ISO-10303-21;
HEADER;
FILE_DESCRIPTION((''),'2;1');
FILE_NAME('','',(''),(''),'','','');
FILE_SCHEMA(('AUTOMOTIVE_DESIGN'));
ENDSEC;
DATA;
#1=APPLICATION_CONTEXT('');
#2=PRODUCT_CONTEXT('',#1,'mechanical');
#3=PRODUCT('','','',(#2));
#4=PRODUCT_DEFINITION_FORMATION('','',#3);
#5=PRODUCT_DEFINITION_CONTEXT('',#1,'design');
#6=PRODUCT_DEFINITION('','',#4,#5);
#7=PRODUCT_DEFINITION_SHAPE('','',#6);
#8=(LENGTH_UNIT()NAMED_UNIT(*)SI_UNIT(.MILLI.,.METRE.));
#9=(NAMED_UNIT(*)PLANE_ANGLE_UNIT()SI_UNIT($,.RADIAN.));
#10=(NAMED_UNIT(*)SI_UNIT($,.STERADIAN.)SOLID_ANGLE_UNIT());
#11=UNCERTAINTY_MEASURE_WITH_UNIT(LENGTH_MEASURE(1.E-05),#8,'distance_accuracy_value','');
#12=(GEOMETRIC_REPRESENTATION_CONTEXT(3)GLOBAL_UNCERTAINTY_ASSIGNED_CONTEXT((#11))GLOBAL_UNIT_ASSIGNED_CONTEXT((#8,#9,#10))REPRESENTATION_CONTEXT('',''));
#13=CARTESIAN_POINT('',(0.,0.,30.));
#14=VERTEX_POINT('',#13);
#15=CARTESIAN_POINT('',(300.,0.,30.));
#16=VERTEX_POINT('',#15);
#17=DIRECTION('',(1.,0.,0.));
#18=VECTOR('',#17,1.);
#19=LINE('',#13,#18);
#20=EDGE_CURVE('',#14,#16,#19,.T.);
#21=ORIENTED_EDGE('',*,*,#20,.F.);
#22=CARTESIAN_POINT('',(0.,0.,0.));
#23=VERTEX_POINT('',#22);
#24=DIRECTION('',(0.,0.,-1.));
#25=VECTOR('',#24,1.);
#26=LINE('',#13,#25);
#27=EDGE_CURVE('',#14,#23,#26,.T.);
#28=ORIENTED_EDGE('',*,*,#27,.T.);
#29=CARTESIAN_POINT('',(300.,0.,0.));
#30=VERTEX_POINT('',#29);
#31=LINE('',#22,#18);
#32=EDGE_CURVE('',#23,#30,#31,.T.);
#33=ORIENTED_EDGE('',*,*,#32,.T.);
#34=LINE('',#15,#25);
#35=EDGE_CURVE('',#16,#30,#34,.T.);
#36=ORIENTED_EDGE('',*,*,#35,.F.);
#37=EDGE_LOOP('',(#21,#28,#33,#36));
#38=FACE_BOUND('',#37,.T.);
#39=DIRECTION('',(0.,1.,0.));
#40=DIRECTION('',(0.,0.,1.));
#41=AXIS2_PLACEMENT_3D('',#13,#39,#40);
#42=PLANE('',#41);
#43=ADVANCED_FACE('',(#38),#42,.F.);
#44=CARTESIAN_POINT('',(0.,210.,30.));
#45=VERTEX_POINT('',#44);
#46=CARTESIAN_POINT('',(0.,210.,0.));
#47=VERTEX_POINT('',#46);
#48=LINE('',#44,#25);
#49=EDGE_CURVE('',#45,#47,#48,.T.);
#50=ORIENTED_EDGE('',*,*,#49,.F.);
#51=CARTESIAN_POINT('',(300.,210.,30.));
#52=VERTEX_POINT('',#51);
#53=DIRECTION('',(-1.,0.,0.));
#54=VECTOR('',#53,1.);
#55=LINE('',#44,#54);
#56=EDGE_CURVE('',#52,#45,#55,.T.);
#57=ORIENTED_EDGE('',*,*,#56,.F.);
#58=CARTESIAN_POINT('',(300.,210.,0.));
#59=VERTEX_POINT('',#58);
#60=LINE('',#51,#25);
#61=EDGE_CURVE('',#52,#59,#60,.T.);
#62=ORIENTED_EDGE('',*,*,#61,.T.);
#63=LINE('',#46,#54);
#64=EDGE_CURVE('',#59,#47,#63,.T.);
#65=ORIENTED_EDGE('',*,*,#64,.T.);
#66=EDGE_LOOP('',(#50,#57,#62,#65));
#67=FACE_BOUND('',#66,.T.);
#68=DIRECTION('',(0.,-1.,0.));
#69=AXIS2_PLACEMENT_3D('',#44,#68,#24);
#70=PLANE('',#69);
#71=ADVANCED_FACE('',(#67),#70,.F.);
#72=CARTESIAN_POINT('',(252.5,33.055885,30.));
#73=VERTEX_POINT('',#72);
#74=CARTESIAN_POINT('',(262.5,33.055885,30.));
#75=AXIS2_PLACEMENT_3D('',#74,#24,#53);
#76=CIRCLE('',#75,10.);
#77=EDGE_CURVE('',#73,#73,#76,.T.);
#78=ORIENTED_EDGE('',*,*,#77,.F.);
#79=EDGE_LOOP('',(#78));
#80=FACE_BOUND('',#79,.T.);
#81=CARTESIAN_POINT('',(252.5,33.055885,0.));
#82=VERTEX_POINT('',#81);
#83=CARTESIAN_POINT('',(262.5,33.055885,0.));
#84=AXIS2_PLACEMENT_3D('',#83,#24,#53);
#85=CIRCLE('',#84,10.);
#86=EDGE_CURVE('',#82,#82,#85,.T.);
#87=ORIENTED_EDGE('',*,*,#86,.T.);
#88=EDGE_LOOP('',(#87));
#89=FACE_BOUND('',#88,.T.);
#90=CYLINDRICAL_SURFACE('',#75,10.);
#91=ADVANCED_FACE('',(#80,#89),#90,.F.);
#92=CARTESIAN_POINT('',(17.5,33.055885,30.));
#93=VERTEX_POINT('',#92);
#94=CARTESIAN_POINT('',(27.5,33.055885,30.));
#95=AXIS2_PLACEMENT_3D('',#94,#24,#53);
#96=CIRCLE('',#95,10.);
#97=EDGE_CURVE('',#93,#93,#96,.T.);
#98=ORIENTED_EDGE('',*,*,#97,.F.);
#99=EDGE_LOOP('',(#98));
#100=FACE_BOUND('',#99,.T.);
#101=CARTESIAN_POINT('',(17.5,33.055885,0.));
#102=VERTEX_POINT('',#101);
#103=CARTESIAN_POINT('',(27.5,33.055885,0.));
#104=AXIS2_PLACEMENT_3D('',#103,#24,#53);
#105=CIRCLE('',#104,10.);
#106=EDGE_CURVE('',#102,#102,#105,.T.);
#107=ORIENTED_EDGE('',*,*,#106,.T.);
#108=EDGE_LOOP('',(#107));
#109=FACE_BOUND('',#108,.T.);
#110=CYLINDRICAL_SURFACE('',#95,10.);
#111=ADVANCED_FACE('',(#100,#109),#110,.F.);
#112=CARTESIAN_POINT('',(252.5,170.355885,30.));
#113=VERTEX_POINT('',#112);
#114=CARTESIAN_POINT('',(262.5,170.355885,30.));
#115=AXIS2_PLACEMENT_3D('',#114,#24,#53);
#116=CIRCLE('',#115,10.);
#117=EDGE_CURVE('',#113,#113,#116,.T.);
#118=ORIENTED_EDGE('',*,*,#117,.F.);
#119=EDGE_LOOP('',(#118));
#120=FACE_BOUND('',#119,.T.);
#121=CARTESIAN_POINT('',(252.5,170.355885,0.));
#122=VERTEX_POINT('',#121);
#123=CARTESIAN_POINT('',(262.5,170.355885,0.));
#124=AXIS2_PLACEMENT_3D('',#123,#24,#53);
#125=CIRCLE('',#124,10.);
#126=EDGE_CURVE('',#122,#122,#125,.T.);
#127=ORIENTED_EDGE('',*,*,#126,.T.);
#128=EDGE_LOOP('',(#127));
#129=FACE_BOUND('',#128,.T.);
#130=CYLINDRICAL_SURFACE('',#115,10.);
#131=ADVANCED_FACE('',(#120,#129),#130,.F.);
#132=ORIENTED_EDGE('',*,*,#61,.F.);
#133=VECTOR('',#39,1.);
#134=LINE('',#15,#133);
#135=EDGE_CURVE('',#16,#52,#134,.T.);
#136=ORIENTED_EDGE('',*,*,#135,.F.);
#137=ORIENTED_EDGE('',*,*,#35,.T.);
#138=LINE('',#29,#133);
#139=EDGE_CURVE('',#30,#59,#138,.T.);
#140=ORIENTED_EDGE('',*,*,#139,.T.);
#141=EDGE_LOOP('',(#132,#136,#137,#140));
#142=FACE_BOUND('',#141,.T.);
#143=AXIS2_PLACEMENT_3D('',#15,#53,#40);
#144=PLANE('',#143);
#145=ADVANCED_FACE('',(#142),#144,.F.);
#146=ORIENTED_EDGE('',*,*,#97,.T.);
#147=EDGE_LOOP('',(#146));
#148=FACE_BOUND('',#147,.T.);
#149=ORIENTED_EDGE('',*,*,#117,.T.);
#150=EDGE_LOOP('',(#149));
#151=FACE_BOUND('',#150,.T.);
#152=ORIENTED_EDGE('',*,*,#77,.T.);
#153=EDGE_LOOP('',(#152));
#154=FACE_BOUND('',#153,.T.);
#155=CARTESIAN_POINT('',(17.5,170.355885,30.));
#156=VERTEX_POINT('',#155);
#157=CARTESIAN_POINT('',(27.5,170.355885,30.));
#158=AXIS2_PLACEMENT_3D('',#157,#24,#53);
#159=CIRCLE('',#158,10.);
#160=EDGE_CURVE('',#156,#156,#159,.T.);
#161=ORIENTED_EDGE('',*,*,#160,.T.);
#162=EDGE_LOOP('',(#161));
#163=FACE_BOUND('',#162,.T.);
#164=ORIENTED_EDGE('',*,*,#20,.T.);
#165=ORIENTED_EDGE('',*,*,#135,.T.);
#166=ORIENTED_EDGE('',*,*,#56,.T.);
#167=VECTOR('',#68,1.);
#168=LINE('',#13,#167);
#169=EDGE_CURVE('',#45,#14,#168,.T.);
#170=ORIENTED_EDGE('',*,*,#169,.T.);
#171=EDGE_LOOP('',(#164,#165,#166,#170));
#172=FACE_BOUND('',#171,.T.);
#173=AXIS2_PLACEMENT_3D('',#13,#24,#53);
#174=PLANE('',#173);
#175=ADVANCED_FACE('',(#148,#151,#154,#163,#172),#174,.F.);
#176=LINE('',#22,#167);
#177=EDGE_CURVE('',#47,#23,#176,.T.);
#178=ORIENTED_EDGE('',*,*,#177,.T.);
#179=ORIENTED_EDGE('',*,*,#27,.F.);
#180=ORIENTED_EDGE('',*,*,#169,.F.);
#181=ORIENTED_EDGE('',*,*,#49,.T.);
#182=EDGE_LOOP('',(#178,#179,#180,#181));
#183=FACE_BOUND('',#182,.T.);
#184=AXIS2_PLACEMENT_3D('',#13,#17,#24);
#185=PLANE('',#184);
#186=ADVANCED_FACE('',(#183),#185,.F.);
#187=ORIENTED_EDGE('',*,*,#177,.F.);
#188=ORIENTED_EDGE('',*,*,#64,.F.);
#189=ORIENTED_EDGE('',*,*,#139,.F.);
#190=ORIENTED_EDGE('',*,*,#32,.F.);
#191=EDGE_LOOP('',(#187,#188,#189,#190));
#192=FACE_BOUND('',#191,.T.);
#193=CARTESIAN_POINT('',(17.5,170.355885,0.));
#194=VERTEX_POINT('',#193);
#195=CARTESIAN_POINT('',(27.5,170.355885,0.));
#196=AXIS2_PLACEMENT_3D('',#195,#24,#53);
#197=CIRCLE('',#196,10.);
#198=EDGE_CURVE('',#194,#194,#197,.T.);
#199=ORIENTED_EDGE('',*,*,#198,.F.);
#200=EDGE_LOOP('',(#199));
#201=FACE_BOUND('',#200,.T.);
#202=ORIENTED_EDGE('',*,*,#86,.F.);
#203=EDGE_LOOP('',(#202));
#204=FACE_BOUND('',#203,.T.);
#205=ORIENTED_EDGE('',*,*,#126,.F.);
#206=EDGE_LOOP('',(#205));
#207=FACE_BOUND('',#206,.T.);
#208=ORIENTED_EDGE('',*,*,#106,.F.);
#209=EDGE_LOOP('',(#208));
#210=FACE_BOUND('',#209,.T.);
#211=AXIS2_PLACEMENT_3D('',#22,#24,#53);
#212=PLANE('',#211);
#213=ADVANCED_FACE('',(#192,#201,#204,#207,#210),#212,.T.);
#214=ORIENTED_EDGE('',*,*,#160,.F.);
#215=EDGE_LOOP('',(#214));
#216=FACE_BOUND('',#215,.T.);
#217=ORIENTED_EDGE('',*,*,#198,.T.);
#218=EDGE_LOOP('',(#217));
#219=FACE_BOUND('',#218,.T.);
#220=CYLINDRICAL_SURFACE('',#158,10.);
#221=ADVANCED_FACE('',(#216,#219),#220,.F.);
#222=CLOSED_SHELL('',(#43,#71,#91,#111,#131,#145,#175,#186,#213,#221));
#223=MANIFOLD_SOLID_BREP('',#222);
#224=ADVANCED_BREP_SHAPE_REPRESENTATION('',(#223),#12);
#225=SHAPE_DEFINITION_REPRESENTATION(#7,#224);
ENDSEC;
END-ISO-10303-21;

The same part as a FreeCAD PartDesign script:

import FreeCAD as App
import Part
import Sketcher
from FreeCAD import Vector

doc = App.newDocument("Part")
body = doc.addObject("PartDesign::Body", "Body")

sketch1 = body.newObject("Sketcher::SketchObject", "Sketch")
sketch1.AttachmentSupport = (doc.getObject("XY_Plane"), [""])
sketch1.MapMode = "FlatFace"
sketch1.addGeometry([
    Part.LineSegment(Vector(0, 210, 0), Vector(0, 0, 0)),
    Part.LineSegment(Vector(0, 0, 0), Vector(300, 0, 0)),
    Part.LineSegment(Vector(300, 0, 0), Vector(300, 210, 0)),
    Part.LineSegment(Vector(300, 210, 0), Vector(0, 210, 0)),
], False)
sketch1.addConstraint([
    Sketcher.Constraint("Coincident", 0, 2, 1, 1),
    Sketcher.Constraint("Coincident", 1, 2, 2, 1),
    Sketcher.Constraint("Coincident", 2, 2, 3, 1),
    Sketcher.Constraint("Coincident", 3, 2, 0, 1),
    Sketcher.Constraint("Vertical", 0),
    Sketcher.Constraint("Horizontal", 1),
    Sketcher.Constraint("Vertical", 2),
    Sketcher.Constraint("Horizontal", 3),
    Sketcher.Constraint("Coincident", 0, 2, -1, 1),
    Sketcher.Constraint("DistanceX", 1, 1, 1, 2, 300.0),
    Sketcher.Constraint("DistanceY", 0, 2, 0, 1, 210.0),
])
pad1 = body.newObject("PartDesign::Pad", "Pad")
pad1.Profile = sketch1
pad1.Length = 30

sketch2 = body.newObject("Sketcher::SketchObject", "Sketch001")
sketch2.AttachmentSupport = (doc.getObject("XY_Plane"), [""])
sketch2.MapMode = "FlatFace"
sketch2.addGeometry([
    Part.Circle(Vector(28, 33, 0), Vector(0, 0, 1), 10),
    Part.Circle(Vector(28, 170, 0), Vector(0, 0, 1), 10),
    Part.Circle(Vector(263, 170, 0), Vector(0, 0, 1), 10),
    Part.Circle(Vector(263, 33, 0), Vector(0, 0, 1), 10),
], False)
sketch2.addConstraint([
    Sketcher.Constraint("Equal", 0, 1),
    Sketcher.Constraint("Equal", 1, 2),
    Sketcher.Constraint("Equal", 2, 3),
    Sketcher.Constraint("Horizontal", 1, 3, 2, 3),
    Sketcher.Constraint("Horizontal", 0, 3, 3, 3),
    Sketcher.Constraint("Vertical", 0, 3, 1, 3),
    Sketcher.Constraint("Vertical", 2, 3, 3, 3),
    Sketcher.Constraint("Diameter", 0, 20.0),
    Sketcher.Constraint("DistanceX", 1, 3, 2, 3, 235.0),
    Sketcher.Constraint("DistanceX", -1, 1, 0, 3, 27.5),
    Sketcher.Constraint("DistanceY", 0, 3, 1, 3, 137.3),
    Sketcher.Constraint("DistanceY", -1, 1, 0, 3, 33.055885),
])
pocket1 = body.newObject("PartDesign::Pocket", "Pocket")
pocket1.Profile = sketch2
pocket1.Length = 30
pocket1.Reversed = True

doc.recompute()
